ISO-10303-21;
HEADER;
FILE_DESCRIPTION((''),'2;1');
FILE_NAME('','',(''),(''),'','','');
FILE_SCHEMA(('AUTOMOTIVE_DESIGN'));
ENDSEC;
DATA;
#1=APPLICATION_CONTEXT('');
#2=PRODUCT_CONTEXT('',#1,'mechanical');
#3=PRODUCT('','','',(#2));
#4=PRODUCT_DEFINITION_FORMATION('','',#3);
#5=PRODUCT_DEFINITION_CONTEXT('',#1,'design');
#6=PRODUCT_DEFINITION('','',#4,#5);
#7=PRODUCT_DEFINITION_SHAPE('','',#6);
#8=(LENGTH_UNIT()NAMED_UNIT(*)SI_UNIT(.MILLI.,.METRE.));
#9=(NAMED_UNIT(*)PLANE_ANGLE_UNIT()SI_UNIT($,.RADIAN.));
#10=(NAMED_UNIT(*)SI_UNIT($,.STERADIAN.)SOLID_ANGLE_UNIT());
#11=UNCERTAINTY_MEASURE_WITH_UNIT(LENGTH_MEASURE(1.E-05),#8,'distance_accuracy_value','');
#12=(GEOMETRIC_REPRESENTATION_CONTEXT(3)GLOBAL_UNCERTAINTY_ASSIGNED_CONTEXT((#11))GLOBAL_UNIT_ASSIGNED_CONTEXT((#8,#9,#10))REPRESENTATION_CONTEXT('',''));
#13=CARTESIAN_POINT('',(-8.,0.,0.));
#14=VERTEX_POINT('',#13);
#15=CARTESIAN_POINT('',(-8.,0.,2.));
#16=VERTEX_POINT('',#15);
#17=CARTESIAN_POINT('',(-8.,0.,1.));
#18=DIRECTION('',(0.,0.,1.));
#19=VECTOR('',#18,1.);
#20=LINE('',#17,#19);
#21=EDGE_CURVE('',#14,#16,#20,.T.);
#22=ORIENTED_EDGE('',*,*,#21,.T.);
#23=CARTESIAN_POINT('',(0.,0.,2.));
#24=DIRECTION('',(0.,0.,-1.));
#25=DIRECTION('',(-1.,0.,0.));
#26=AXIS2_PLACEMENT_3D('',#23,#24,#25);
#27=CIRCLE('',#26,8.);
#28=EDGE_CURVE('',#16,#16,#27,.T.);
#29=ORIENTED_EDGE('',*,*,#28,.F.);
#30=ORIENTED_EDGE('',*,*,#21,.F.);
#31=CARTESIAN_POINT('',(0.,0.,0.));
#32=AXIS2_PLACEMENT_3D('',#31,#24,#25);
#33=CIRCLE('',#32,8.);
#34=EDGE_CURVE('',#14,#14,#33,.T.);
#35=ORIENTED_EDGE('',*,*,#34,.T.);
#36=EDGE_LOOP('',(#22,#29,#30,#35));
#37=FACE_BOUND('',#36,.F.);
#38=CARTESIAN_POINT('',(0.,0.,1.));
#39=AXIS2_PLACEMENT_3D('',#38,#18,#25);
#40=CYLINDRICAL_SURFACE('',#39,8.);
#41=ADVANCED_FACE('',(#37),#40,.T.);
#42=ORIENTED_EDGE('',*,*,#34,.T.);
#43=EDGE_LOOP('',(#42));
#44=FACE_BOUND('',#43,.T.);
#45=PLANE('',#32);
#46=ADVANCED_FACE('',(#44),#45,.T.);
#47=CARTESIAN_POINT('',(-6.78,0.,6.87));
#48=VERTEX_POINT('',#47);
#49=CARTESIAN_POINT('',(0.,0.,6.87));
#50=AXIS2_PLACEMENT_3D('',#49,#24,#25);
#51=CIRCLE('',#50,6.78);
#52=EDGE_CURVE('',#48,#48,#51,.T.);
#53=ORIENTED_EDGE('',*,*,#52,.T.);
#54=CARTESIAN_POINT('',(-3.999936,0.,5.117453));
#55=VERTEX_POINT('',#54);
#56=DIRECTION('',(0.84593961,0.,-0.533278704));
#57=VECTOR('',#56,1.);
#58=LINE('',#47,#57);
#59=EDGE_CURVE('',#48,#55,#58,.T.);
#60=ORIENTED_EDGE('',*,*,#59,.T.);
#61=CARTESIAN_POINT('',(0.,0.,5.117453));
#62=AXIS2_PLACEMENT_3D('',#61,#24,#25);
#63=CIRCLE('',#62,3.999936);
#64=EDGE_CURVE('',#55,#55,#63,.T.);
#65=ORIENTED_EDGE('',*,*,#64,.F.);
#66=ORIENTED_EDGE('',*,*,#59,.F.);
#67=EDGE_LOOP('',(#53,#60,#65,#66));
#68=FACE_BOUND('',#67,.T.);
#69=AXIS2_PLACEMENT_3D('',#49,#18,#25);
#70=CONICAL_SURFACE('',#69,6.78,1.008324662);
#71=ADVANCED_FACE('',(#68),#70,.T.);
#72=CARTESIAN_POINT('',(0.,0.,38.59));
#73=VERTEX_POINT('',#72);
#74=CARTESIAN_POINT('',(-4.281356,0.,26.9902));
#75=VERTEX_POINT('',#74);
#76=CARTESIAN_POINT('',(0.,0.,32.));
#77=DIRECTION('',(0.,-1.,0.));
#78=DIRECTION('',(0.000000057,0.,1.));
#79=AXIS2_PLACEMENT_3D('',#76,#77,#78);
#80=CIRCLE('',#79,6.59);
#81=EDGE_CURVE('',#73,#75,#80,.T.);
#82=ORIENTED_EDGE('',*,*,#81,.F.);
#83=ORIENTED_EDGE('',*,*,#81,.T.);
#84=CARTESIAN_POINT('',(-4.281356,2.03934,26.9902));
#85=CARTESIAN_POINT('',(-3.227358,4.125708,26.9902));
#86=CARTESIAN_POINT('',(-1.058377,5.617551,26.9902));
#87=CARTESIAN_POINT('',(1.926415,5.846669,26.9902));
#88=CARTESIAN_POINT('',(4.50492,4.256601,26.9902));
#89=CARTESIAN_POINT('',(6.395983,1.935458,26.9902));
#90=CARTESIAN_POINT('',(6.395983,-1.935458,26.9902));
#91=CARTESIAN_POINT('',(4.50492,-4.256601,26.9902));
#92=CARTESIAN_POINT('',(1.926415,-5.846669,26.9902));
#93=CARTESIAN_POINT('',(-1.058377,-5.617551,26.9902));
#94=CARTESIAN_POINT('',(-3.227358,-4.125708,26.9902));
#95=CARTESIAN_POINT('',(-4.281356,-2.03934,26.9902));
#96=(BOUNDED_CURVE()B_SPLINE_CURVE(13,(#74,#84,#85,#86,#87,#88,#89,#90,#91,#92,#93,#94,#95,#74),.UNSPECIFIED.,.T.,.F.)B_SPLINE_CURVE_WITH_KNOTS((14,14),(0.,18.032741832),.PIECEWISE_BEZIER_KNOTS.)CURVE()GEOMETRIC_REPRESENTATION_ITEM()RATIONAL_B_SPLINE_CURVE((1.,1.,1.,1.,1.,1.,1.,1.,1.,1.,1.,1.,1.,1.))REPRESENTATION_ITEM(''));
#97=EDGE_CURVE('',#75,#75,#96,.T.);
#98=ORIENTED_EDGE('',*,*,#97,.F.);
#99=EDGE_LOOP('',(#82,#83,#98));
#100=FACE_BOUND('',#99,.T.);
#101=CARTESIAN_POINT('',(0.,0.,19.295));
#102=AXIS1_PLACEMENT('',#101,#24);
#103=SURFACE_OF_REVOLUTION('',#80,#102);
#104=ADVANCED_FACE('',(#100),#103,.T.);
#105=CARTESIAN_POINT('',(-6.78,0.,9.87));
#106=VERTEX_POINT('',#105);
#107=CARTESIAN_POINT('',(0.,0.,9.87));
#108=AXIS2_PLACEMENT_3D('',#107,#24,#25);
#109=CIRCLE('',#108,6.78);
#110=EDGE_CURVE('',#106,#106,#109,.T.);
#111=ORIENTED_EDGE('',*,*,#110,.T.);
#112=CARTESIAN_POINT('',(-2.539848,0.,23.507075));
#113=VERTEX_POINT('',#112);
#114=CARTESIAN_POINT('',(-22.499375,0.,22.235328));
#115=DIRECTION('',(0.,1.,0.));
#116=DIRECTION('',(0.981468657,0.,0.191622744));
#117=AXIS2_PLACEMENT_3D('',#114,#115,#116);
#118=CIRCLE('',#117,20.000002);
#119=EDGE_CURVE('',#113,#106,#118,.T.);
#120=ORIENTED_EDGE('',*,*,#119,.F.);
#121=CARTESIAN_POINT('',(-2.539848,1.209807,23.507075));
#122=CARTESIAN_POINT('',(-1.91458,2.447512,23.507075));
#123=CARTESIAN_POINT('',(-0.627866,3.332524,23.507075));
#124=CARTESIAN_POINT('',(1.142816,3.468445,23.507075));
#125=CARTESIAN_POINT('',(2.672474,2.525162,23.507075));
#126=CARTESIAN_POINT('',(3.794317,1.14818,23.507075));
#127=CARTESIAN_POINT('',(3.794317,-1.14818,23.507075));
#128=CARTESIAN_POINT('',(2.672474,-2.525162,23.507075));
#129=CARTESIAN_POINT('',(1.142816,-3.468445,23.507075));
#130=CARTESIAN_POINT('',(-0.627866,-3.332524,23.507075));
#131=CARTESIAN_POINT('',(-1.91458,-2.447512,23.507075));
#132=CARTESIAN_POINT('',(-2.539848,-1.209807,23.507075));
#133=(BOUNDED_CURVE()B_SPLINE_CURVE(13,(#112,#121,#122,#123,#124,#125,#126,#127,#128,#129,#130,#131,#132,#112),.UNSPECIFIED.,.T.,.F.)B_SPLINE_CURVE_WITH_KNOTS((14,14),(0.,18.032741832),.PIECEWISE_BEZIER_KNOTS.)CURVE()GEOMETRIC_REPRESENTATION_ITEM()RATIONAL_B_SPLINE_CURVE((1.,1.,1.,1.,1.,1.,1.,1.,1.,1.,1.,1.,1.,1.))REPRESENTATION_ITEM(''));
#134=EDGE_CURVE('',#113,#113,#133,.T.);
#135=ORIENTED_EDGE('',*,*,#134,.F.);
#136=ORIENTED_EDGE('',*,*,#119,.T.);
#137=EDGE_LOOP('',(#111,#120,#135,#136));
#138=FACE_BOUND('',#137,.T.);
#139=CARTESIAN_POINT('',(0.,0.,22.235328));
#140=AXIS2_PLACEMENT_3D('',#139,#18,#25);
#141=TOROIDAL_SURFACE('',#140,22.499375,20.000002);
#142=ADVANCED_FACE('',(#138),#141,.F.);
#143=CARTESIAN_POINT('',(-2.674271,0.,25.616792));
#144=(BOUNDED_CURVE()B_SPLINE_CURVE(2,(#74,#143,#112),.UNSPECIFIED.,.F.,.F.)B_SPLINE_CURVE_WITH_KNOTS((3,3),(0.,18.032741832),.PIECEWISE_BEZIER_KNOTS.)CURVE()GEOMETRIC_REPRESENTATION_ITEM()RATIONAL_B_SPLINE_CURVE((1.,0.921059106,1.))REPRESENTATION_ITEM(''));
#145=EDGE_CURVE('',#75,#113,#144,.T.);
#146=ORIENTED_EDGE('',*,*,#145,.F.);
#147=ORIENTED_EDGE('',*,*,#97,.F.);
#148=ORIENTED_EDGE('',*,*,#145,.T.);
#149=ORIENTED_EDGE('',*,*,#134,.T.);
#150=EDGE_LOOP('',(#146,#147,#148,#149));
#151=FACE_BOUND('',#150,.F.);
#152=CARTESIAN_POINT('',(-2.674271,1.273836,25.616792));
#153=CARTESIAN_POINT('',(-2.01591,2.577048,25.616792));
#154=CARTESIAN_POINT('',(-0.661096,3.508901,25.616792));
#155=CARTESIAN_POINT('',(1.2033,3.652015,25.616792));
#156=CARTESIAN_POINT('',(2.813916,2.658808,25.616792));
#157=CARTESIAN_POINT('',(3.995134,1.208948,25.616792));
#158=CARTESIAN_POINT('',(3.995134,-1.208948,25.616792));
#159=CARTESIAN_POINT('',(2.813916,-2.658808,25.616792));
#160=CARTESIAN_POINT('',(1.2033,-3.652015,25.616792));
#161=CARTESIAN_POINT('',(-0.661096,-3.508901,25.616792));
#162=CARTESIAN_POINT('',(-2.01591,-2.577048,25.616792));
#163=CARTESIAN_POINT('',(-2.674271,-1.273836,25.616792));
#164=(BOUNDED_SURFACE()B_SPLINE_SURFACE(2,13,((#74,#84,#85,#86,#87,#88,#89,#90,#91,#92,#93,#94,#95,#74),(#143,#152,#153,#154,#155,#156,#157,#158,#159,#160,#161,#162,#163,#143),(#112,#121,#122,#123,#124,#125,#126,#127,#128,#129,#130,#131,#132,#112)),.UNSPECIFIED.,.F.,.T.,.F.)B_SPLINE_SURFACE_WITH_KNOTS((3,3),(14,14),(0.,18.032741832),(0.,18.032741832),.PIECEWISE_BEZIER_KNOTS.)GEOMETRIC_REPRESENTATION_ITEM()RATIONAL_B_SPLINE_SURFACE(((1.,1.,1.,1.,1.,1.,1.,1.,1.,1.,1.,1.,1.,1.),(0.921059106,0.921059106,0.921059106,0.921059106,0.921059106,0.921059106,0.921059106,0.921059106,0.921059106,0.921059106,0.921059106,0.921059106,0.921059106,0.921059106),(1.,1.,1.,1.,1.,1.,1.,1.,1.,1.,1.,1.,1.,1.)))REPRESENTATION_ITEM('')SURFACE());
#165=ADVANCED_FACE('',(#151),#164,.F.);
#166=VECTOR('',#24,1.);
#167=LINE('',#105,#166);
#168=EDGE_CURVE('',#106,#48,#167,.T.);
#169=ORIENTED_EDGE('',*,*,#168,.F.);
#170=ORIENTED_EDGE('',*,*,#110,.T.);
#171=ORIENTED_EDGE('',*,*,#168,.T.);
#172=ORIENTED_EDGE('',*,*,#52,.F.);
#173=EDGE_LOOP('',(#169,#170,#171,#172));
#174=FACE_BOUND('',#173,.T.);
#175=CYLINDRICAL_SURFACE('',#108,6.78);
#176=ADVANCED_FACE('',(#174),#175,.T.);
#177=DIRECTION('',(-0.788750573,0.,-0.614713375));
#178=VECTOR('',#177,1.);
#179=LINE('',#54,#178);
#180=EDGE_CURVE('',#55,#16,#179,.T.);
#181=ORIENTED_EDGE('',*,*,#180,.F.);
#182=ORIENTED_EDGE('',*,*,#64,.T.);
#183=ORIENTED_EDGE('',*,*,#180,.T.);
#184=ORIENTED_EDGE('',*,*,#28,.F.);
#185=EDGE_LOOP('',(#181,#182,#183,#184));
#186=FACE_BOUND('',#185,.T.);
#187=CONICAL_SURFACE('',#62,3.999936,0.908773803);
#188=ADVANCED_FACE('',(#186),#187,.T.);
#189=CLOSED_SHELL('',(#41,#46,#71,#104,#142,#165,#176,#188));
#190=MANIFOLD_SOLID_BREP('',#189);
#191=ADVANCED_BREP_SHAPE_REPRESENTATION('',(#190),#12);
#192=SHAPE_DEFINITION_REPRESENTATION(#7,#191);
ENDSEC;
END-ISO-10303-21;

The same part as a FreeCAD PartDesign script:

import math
import FreeCAD as App
import Part
import Sketcher
Q = App.Units.Quantity


def edges_at(feature, points):
    """Names of the edges that pass closest to the given points."""
    edges = feature.Shape.Edges
    near = lambda p: min(range(len(edges)), key=lambda i: edges[i].distToShape(Part.Vertex(*p))[0])
    return sorted({f"Edge{near(p) + 1}" for p in points})

doc = App.newDocument("Part")
params = doc.addObject("Spreadsheet::Sheet", "Params")
for row, (alias, value) in enumerate([
    ("sketch1_width", "8 mm"),
    ("sketch1_height", "3 mm"),
    ("sketch1_height2", "2 mm"),
    ("sketch1_radius", "6.59 mm"),
    ("revolution_angle", "360 deg"),
    ("fillet_radius", "5 mm"),
], start=1):
    params.set(f"A{row}", alias)
    params.set(f"B{row}", "=" + value)
    params.setAlias(f"B{row}", alias)

body = doc.addObject("PartDesign::Body", "Body")

# Sketch on XZ plane
sketch1 = doc.addObject("Sketcher::SketchObject", "Sketch")
body.addObject(sketch1)
sketch1.AttachmentSupport = (doc.XZ_Plane, [""])
sketch1.MapMode = "FlatFace"
sketch1.addGeometry(Part.ArcOfCircle(Part.Circle(App.Vector(0, 32, 0), App.Vector(0, 0, 1), 6.6), math.radians(90), math.radians(244)), False)
sketch1.addGeometry(Part.ArcOfCircle(Part.Circle(App.Vector(-22.5, 22.2, 0), App.Vector(0, 0, 1), 20), math.radians(-38), math.radians(11)), False)
sketch1.addGeometry(Part.LineSegment(App.Vector(-6.8, 9.9, 0), App.Vector(-6.8, 6.9, 0)), False)
sketch1.addGeometry(Part.LineSegment(App.Vector(-6.8, 6.9, 0), App.Vector(-4, 5.1, 0)), False)
sketch1.addGeometry(Part.LineSegment(App.Vector(-4, 5.1, 0), App.Vector(-8, 2, 0)), False)
sketch1.addGeometry(Part.LineSegment(App.Vector(-8, 2, 0), App.Vector(-8, 0, 0)), False)
sketch1.addGeometry(Part.LineSegment(App.Vector(-8, 0, 0), App.Vector(0, 0, 0)), False)
sketch1.addGeometry(Part.LineSegment(App.Vector(0, 0, 0), App.Vector(0, 38.6, 0)), False)
sketch1.addConstraint(Sketcher.Constraint("Coincident", 0, 2, 1, 2))
sketch1.addConstraint(Sketcher.Constraint("Coincident", 1, 1, 2, 1))
sketch1.addConstraint(Sketcher.Constraint("Coincident", 2, 2, 3, 1))
sketch1.addConstraint(Sketcher.Constraint("Coincident", 3, 2, 4, 1))
sketch1.addConstraint(Sketcher.Constraint("Coincident", 4, 2, 5, 1))
sketch1.addConstraint(Sketcher.Constraint("Coincident", 5, 2, 6, 1))
sketch1.addConstraint(Sketcher.Constraint("Coincident", 6, 2, 7, 1))
sketch1.addConstraint(Sketcher.Constraint("Coincident", 7, 2, 0, 1))
sketch1.addConstraint(Sketcher.Constraint("Vertical", 2))
sketch1.addConstraint(Sketcher.Constraint("Vertical", 5))
sketch1.addConstraint(Sketcher.Constraint("Horizontal", 6))
sketch1.addConstraint(Sketcher.Constraint("Vertical", 7))
sketch1.addConstraint(Sketcher.Constraint("Coincident", 6, 2, -1, 1))
sketch1.addConstraint(Sketcher.Constraint("PointOnObject", 0, 3, -2))
sketch1.addConstraint(Sketcher.Constraint("DistanceX", 6, 1, 6, 2, Q("8 mm")))
sketch1.addConstraint(Sketcher.Constraint("DistanceY", 2, 2, 2, 1, Q("3 mm")))
sketch1.addConstraint(Sketcher.Constraint("DistanceY", 5, 2, 5, 1, Q("2 mm")))
sketch1.addConstraint(Sketcher.Constraint("Radius", 0, Q("6.59 mm")))
sketch1.addConstraint(Sketcher.Constraint("DistanceY", -1, 1, 0, 3, Q("32 mm")))
sketch1.addConstraint(Sketcher.Constraint("DistanceX", 0, 2, -1, 1, Q("2.87 mm")))
sketch1.addConstraint(Sketcher.Constraint("DistanceX", 1, 1, -1, 1, Q("6.78 mm")))
sketch1.addConstraint(Sketcher.Constraint("DistanceY", -1, 1, 1, 1, Q("9.87 mm")))
sketch1.addConstraint(Sketcher.Constraint("Radius", 1, Q("20.000002 mm")))
sketch1.addConstraint(Sketcher.Constraint("DistanceY", 3, 2, 0, 2, Q("20.95033 mm")))
sketch1.addConstraint(Sketcher.Constraint("DistanceX", 1, 3, 3, 2, Q("18.499439 mm")))
sketch1.setExpression("Constraints[14]", "Params.sketch1_width")
sketch1.setExpression("Constraints[15]", "Params.sketch1_height")
sketch1.setExpression("Constraints[16]", "Params.sketch1_height2")
sketch1.setExpression("Constraints[17]", "Params.sketch1_radius")
revolution = doc.addObject("PartDesign::Revolution", "Revolution")
body.addObject(revolution)
revolution.Profile = sketch1
revolution.ReferenceAxis = (sketch1, ["V_Axis"])
revolution.setExpression("Angle", "Params.revolution_angle")
doc.recompute()

fillet = doc.addObject("PartDesign::Fillet", "Fillet")
body.addObject(fillet)
fillet.Base = (revolution, edges_at(revolution, [(2.87, 0, 26.068)]))
fillet.setExpression("Radius", "Params.fillet_radius")

doc.recompute()
